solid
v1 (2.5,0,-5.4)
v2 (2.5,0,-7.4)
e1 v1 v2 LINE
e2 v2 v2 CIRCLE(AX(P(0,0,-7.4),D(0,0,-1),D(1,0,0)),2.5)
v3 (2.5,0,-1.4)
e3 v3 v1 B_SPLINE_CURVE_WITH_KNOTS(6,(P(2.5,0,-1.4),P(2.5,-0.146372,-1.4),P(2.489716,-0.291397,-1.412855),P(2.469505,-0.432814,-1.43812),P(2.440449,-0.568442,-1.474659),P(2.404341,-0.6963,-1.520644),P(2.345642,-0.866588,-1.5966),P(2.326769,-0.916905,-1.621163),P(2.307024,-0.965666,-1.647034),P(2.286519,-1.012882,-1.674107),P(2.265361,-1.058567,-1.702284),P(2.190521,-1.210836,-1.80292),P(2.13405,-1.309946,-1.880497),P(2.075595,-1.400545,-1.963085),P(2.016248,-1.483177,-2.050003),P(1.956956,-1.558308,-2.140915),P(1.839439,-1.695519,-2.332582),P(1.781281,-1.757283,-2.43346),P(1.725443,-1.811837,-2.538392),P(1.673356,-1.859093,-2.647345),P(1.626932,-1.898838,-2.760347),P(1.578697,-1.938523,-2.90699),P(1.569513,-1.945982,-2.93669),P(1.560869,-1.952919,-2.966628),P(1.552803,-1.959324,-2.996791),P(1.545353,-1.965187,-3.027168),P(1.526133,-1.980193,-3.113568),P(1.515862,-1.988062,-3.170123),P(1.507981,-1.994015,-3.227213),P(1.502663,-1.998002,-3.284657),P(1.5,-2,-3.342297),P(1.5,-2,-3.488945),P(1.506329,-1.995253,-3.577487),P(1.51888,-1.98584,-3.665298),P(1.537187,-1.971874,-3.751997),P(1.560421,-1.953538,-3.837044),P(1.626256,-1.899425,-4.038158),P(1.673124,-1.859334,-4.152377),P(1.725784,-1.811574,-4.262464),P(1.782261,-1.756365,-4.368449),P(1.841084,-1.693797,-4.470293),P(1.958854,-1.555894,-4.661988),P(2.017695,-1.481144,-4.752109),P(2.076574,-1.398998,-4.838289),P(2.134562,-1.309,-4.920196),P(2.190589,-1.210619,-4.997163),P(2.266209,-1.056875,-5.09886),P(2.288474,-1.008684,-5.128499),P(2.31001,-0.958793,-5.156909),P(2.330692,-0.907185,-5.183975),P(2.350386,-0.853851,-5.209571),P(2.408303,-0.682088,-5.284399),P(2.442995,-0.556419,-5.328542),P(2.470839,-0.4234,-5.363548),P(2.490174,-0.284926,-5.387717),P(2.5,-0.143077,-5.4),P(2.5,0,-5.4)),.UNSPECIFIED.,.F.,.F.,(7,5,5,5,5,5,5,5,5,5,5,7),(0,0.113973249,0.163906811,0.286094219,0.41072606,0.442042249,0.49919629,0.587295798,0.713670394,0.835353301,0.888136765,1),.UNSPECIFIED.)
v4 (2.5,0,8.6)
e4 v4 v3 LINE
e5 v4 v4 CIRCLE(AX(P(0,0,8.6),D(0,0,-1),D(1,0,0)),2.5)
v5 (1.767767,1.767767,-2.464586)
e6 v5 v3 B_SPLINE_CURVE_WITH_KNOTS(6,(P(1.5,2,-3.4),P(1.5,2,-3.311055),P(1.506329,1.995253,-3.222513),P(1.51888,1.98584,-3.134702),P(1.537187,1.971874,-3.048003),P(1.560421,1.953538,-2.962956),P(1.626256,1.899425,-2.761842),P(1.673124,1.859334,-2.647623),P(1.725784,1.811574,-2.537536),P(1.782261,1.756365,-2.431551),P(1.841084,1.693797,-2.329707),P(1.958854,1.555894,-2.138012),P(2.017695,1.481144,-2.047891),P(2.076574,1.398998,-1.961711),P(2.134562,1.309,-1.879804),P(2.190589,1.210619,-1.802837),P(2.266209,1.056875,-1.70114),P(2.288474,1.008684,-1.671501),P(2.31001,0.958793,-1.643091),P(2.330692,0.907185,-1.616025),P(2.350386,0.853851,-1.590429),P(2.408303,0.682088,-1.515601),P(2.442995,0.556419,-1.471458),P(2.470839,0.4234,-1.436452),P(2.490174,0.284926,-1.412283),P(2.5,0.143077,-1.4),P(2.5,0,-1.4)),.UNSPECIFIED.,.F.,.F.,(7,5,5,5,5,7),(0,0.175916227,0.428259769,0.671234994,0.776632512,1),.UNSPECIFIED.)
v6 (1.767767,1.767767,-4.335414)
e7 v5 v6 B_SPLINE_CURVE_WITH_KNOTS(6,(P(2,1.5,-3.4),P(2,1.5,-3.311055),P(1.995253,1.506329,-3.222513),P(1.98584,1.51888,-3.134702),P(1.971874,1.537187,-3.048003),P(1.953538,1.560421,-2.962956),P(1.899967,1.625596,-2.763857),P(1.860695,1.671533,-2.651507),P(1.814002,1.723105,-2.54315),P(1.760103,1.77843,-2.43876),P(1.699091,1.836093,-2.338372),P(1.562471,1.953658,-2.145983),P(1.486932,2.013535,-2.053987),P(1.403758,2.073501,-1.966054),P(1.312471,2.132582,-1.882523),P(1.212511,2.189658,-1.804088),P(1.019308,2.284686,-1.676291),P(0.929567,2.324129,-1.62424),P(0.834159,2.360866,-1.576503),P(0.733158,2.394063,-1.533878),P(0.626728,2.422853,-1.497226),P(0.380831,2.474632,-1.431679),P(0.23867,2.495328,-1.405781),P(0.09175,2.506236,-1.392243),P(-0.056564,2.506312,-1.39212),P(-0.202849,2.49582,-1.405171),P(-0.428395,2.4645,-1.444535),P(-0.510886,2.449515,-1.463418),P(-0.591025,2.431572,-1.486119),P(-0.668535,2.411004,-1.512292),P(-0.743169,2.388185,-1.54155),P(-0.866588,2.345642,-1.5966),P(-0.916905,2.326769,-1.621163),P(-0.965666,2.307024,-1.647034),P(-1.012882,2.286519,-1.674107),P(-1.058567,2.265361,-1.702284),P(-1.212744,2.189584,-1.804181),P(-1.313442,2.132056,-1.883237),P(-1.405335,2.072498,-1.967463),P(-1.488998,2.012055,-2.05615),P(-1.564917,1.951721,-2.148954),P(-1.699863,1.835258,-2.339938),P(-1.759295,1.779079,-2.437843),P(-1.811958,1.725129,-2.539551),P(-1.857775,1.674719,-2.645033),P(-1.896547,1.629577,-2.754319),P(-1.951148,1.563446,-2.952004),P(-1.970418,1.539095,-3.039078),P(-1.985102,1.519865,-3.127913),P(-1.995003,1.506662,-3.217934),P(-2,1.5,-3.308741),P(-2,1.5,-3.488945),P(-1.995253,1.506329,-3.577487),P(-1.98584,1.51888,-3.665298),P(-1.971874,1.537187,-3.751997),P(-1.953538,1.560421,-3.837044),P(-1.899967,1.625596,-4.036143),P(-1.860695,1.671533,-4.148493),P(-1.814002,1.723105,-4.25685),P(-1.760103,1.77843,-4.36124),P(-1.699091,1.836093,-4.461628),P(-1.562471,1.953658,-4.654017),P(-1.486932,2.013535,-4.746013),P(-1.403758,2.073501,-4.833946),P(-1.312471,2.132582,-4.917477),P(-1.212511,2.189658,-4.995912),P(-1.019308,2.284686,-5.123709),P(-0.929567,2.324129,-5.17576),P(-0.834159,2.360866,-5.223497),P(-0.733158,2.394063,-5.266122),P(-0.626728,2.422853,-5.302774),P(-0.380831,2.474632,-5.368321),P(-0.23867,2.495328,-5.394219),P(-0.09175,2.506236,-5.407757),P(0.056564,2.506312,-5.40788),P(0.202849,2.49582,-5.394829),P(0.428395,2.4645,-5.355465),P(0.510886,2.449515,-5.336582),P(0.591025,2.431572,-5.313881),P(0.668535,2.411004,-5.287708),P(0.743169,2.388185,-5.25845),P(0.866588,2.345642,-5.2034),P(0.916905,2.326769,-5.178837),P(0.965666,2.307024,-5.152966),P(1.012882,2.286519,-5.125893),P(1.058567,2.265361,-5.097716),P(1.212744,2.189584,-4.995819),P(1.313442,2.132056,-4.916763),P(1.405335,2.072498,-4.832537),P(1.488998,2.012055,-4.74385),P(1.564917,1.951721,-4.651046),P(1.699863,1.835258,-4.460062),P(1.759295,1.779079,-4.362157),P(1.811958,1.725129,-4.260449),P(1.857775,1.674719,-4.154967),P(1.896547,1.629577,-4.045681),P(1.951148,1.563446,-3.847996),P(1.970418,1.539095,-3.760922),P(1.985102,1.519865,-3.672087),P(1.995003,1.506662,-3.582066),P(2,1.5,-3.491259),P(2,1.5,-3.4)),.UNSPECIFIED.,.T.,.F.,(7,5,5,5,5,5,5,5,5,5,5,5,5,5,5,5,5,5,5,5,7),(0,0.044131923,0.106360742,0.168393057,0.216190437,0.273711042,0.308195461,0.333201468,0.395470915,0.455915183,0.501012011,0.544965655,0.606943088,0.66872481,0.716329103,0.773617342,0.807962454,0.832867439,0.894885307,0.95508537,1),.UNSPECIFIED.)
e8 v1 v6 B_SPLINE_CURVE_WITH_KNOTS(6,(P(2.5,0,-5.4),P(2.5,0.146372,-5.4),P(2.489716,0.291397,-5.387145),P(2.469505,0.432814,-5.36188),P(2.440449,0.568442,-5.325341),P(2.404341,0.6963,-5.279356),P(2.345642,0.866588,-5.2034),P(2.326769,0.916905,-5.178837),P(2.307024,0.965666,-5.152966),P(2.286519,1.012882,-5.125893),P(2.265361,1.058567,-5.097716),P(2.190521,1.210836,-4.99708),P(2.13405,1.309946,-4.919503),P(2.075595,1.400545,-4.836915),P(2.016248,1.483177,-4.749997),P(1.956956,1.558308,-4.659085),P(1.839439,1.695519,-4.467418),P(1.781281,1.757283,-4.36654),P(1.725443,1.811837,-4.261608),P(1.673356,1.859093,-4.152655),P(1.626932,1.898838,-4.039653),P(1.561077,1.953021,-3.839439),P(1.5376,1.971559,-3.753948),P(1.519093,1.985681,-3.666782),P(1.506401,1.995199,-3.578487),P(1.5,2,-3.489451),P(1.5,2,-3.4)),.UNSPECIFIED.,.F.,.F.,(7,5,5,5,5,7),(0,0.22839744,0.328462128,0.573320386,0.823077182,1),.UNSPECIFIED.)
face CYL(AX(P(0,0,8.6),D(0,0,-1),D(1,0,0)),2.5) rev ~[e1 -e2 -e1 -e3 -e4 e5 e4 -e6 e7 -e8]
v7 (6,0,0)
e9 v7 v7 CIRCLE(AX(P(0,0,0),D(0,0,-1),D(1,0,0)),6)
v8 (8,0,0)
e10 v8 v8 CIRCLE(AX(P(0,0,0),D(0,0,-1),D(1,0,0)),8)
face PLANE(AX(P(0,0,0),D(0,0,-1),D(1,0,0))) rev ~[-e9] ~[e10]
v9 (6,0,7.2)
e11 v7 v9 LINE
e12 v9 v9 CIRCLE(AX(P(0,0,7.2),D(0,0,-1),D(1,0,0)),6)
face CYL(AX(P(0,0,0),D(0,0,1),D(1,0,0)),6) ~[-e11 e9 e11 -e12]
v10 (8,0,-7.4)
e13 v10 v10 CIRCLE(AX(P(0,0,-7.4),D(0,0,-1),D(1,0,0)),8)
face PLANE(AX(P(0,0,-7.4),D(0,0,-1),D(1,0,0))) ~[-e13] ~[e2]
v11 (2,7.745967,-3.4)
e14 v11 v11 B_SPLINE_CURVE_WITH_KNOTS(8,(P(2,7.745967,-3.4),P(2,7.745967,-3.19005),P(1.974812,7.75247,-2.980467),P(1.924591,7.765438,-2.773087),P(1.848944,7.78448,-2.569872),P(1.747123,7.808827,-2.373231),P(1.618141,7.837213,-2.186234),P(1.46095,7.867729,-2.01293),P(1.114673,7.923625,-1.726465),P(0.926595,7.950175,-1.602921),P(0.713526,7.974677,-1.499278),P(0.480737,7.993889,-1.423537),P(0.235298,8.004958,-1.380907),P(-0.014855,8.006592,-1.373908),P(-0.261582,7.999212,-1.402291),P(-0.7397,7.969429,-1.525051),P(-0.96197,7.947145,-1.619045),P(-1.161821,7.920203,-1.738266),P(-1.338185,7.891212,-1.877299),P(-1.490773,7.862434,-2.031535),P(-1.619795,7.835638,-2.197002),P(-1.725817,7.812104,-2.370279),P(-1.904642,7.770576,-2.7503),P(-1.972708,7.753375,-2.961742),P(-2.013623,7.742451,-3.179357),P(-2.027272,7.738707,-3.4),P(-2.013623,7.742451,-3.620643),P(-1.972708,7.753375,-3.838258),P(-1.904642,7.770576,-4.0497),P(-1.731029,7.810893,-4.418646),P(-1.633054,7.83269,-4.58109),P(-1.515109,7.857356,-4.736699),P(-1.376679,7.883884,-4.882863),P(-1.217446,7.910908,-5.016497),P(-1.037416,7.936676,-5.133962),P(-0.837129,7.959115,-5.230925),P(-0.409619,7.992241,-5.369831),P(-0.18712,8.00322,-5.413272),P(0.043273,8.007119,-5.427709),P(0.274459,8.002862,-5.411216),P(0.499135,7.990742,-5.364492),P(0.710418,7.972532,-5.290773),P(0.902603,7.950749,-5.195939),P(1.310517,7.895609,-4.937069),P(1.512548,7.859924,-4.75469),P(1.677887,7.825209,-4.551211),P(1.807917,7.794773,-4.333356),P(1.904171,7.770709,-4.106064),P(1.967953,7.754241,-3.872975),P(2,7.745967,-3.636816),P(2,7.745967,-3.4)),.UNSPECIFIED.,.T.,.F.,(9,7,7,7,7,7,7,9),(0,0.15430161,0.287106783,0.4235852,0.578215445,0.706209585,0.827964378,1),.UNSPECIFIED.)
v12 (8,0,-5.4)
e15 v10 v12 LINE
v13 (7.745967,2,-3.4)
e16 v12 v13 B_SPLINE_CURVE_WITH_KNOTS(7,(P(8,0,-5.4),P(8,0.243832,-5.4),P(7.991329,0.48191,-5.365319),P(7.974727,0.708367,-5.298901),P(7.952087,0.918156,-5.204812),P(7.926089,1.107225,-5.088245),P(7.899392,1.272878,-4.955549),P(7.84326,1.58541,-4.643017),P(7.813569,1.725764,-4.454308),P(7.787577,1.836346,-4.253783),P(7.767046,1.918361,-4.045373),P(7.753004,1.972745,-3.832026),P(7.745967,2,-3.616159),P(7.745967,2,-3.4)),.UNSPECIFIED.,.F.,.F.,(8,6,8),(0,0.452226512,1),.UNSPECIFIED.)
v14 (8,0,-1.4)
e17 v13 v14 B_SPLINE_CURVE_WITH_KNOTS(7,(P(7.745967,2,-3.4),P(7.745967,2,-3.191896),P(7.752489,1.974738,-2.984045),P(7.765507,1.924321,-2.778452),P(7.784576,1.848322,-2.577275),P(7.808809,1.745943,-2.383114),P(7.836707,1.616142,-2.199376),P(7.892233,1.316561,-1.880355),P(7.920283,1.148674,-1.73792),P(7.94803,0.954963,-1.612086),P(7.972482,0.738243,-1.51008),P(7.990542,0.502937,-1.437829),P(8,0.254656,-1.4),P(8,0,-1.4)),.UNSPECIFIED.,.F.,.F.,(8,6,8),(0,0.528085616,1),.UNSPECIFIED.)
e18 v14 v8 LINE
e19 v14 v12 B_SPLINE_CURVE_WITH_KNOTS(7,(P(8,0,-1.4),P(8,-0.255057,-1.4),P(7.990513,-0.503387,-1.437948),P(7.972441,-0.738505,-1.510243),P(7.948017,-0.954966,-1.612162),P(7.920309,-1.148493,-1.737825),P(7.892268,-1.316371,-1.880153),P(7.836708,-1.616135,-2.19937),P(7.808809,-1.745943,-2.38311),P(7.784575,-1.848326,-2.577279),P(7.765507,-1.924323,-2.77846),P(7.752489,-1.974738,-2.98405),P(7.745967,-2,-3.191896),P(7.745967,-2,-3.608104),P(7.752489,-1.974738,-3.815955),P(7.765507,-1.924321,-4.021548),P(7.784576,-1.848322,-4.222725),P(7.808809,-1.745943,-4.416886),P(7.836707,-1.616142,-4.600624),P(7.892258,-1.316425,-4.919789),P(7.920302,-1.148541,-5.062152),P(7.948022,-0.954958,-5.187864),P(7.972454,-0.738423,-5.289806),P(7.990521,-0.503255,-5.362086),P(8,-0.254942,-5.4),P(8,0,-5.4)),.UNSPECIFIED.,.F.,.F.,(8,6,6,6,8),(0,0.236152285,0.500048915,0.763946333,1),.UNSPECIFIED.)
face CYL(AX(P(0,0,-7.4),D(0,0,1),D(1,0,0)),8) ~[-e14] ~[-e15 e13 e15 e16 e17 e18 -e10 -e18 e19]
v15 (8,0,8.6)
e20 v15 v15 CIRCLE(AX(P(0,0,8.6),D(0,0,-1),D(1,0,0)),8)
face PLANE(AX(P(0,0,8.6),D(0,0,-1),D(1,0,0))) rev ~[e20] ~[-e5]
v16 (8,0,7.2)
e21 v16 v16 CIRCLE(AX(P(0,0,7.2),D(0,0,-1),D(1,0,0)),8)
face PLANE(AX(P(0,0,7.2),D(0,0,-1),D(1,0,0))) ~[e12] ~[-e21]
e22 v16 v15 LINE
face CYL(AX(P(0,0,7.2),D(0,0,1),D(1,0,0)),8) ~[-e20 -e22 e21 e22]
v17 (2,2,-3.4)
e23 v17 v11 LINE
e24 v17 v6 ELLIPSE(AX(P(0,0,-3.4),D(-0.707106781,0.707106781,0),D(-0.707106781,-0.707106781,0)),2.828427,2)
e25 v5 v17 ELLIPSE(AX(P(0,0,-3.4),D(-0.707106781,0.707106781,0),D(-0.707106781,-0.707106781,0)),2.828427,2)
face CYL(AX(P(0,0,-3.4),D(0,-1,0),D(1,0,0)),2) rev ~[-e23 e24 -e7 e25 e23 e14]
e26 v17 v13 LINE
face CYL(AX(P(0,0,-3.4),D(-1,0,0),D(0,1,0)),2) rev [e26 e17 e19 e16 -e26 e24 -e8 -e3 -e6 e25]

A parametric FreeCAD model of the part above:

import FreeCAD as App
import Part
import Sketcher

V = App.Vector

doc = App.newDocument("Part")
body = doc.addObject("PartDesign::Body", "Body")

# Sketch on XZ plane
sketch1 = doc.addObject("Sketcher::SketchObject", "Sketch")
body.addObject(sketch1)
sketch1.AttachmentSupport = (doc.XZ_Plane, [""])
sketch1.MapMode = "FlatFace"
sketch1.addGeometry([
    Part.LineSegment(V(8, 8.6, 0), V(2.5, 8.6, 0)),  # 0
    Part.LineSegment(V(2.5, 8.6, 0), V(2.5, -7.4, 0)),  # 1
    Part.LineSegment(V(2.5, -7.4, 0), V(8, -7.4, 0)),  # 2
    Part.LineSegment(V(8, -7.4, 0), V(8, 0, 0)),  # 3
    Part.LineSegment(V(8, 0, 0), V(6, 0, 0)),  # 4
    Part.LineSegment(V(6, 0, 0), V(6, 7.2, 0)),  # 5
    Part.LineSegment(V(6, 7.2, 0), V(8, 7.2, 0)),  # 6
    Part.LineSegment(V(8, 7.2, 0), V(8, 8.6, 0)),  # 7
], False)
sketch1.addConstraint([
    Sketcher.Constraint("Coincident", 0, 2, 1, 1),
    Sketcher.Constraint("Coincident", 1, 2, 2, 1),
    Sketcher.Constraint("Coincident", 2, 2, 3, 1),
    Sketcher.Constraint("Coincident", 3, 2, 4, 1),
    Sketcher.Constraint("Coincident", 4, 2, 5, 1),
    Sketcher.Constraint("Coincident", 5, 2, 6, 1),
    Sketcher.Constraint("Coincident", 6, 2, 7, 1),
    Sketcher.Constraint("Coincident", 7, 2, 0, 1),
    Sketcher.Constraint("Horizontal", 0),
    Sketcher.Constraint("Vertical", 1),
    Sketcher.Constraint("Horizontal", 2),
    Sketcher.Constraint("Vertical", 3),
    Sketcher.Constraint("Horizontal", 4),
    Sketcher.Constraint("Vertical", 5),
    Sketcher.Constraint("Horizontal", 6),
    Sketcher.Constraint("Vertical", 7),
    Sketcher.Constraint("PointOnObject", 3, 2, -1),
    Sketcher.Constraint("Vertical", 3, 2, 6, 2),
    Sketcher.Constraint("DistanceX", 4, 2, 4, 1, 2.0),
    Sketcher.Constraint("DistanceY", 1, 2, 1, 1, 16.0),
    Sketcher.Constraint("DistanceX", 0, 2, 0, 1, 5.5),
    Sketcher.Constraint("DistanceY", 3, 1, 3, 2, 7.4),
    Sketcher.Constraint("DistanceY", 5, 1, 5, 2, 7.2),
    Sketcher.Constraint("DistanceX", -1, 1, 2, 2, 8.0),
])
revolution = doc.addObject("PartDesign::Revolution", "Revolution")
body.addObject(revolution)
revolution.Profile = sketch1
revolution.ReferenceAxis = (sketch1, ["V_Axis"])
revolution.Angle = 360

# Sketch on YZ plane
sketch2 = doc.addObject("Sketcher::SketchObject", "Sketch001")
body.addObject(sketch2)
sketch2.AttachmentSupport = (doc.YZ_Plane, [""])
sketch2.MapMode = "FlatFace"
sketch2.addGeometry(Part.Circle(V(0, -3.4, 0), V(0, 0, 1), 2), False)
sketch2.addConstraint([
    Sketcher.Constraint("PointOnObject", 0, 3, -2),
    Sketcher.Constraint("Diameter", 0, 4.0),
    Sketcher.Constraint("DistanceY", 0, 3, -1, 1, 3.4),
])
pocket1 = doc.addObject("PartDesign::Pocket", "Pocket")
body.addObject(pocket1)
pocket1.Profile = sketch2
pocket1.Length = 25
pocket1.Reversed = True

# Sketch on XZ plane
sketch3 = doc.addObject("Sketcher::SketchObject", "Sketch002")
body.addObject(sketch3)
sketch3.AttachmentSupport = (doc.XZ_Plane, [""])
sketch3.MapMode = "FlatFace"
sketch3.addGeometry(Part.Circle(V(0, -3.4, 0), V(0, 0, 1), 2), False)
sketch3.addConstraint([
    Sketcher.Constraint("PointOnObject", 0, 3, -2),
    Sketcher.Constraint("Diameter", 0, 4.0),
    Sketcher.Constraint("DistanceY", 0, 3, -1, 1, 3.4),
])
pocket2 = doc.addObject("PartDesign::Pocket", "Pocket001")
body.addObject(pocket2)
pocket2.Profile = sketch3
pocket2.Length = 25

doc.recompute()
